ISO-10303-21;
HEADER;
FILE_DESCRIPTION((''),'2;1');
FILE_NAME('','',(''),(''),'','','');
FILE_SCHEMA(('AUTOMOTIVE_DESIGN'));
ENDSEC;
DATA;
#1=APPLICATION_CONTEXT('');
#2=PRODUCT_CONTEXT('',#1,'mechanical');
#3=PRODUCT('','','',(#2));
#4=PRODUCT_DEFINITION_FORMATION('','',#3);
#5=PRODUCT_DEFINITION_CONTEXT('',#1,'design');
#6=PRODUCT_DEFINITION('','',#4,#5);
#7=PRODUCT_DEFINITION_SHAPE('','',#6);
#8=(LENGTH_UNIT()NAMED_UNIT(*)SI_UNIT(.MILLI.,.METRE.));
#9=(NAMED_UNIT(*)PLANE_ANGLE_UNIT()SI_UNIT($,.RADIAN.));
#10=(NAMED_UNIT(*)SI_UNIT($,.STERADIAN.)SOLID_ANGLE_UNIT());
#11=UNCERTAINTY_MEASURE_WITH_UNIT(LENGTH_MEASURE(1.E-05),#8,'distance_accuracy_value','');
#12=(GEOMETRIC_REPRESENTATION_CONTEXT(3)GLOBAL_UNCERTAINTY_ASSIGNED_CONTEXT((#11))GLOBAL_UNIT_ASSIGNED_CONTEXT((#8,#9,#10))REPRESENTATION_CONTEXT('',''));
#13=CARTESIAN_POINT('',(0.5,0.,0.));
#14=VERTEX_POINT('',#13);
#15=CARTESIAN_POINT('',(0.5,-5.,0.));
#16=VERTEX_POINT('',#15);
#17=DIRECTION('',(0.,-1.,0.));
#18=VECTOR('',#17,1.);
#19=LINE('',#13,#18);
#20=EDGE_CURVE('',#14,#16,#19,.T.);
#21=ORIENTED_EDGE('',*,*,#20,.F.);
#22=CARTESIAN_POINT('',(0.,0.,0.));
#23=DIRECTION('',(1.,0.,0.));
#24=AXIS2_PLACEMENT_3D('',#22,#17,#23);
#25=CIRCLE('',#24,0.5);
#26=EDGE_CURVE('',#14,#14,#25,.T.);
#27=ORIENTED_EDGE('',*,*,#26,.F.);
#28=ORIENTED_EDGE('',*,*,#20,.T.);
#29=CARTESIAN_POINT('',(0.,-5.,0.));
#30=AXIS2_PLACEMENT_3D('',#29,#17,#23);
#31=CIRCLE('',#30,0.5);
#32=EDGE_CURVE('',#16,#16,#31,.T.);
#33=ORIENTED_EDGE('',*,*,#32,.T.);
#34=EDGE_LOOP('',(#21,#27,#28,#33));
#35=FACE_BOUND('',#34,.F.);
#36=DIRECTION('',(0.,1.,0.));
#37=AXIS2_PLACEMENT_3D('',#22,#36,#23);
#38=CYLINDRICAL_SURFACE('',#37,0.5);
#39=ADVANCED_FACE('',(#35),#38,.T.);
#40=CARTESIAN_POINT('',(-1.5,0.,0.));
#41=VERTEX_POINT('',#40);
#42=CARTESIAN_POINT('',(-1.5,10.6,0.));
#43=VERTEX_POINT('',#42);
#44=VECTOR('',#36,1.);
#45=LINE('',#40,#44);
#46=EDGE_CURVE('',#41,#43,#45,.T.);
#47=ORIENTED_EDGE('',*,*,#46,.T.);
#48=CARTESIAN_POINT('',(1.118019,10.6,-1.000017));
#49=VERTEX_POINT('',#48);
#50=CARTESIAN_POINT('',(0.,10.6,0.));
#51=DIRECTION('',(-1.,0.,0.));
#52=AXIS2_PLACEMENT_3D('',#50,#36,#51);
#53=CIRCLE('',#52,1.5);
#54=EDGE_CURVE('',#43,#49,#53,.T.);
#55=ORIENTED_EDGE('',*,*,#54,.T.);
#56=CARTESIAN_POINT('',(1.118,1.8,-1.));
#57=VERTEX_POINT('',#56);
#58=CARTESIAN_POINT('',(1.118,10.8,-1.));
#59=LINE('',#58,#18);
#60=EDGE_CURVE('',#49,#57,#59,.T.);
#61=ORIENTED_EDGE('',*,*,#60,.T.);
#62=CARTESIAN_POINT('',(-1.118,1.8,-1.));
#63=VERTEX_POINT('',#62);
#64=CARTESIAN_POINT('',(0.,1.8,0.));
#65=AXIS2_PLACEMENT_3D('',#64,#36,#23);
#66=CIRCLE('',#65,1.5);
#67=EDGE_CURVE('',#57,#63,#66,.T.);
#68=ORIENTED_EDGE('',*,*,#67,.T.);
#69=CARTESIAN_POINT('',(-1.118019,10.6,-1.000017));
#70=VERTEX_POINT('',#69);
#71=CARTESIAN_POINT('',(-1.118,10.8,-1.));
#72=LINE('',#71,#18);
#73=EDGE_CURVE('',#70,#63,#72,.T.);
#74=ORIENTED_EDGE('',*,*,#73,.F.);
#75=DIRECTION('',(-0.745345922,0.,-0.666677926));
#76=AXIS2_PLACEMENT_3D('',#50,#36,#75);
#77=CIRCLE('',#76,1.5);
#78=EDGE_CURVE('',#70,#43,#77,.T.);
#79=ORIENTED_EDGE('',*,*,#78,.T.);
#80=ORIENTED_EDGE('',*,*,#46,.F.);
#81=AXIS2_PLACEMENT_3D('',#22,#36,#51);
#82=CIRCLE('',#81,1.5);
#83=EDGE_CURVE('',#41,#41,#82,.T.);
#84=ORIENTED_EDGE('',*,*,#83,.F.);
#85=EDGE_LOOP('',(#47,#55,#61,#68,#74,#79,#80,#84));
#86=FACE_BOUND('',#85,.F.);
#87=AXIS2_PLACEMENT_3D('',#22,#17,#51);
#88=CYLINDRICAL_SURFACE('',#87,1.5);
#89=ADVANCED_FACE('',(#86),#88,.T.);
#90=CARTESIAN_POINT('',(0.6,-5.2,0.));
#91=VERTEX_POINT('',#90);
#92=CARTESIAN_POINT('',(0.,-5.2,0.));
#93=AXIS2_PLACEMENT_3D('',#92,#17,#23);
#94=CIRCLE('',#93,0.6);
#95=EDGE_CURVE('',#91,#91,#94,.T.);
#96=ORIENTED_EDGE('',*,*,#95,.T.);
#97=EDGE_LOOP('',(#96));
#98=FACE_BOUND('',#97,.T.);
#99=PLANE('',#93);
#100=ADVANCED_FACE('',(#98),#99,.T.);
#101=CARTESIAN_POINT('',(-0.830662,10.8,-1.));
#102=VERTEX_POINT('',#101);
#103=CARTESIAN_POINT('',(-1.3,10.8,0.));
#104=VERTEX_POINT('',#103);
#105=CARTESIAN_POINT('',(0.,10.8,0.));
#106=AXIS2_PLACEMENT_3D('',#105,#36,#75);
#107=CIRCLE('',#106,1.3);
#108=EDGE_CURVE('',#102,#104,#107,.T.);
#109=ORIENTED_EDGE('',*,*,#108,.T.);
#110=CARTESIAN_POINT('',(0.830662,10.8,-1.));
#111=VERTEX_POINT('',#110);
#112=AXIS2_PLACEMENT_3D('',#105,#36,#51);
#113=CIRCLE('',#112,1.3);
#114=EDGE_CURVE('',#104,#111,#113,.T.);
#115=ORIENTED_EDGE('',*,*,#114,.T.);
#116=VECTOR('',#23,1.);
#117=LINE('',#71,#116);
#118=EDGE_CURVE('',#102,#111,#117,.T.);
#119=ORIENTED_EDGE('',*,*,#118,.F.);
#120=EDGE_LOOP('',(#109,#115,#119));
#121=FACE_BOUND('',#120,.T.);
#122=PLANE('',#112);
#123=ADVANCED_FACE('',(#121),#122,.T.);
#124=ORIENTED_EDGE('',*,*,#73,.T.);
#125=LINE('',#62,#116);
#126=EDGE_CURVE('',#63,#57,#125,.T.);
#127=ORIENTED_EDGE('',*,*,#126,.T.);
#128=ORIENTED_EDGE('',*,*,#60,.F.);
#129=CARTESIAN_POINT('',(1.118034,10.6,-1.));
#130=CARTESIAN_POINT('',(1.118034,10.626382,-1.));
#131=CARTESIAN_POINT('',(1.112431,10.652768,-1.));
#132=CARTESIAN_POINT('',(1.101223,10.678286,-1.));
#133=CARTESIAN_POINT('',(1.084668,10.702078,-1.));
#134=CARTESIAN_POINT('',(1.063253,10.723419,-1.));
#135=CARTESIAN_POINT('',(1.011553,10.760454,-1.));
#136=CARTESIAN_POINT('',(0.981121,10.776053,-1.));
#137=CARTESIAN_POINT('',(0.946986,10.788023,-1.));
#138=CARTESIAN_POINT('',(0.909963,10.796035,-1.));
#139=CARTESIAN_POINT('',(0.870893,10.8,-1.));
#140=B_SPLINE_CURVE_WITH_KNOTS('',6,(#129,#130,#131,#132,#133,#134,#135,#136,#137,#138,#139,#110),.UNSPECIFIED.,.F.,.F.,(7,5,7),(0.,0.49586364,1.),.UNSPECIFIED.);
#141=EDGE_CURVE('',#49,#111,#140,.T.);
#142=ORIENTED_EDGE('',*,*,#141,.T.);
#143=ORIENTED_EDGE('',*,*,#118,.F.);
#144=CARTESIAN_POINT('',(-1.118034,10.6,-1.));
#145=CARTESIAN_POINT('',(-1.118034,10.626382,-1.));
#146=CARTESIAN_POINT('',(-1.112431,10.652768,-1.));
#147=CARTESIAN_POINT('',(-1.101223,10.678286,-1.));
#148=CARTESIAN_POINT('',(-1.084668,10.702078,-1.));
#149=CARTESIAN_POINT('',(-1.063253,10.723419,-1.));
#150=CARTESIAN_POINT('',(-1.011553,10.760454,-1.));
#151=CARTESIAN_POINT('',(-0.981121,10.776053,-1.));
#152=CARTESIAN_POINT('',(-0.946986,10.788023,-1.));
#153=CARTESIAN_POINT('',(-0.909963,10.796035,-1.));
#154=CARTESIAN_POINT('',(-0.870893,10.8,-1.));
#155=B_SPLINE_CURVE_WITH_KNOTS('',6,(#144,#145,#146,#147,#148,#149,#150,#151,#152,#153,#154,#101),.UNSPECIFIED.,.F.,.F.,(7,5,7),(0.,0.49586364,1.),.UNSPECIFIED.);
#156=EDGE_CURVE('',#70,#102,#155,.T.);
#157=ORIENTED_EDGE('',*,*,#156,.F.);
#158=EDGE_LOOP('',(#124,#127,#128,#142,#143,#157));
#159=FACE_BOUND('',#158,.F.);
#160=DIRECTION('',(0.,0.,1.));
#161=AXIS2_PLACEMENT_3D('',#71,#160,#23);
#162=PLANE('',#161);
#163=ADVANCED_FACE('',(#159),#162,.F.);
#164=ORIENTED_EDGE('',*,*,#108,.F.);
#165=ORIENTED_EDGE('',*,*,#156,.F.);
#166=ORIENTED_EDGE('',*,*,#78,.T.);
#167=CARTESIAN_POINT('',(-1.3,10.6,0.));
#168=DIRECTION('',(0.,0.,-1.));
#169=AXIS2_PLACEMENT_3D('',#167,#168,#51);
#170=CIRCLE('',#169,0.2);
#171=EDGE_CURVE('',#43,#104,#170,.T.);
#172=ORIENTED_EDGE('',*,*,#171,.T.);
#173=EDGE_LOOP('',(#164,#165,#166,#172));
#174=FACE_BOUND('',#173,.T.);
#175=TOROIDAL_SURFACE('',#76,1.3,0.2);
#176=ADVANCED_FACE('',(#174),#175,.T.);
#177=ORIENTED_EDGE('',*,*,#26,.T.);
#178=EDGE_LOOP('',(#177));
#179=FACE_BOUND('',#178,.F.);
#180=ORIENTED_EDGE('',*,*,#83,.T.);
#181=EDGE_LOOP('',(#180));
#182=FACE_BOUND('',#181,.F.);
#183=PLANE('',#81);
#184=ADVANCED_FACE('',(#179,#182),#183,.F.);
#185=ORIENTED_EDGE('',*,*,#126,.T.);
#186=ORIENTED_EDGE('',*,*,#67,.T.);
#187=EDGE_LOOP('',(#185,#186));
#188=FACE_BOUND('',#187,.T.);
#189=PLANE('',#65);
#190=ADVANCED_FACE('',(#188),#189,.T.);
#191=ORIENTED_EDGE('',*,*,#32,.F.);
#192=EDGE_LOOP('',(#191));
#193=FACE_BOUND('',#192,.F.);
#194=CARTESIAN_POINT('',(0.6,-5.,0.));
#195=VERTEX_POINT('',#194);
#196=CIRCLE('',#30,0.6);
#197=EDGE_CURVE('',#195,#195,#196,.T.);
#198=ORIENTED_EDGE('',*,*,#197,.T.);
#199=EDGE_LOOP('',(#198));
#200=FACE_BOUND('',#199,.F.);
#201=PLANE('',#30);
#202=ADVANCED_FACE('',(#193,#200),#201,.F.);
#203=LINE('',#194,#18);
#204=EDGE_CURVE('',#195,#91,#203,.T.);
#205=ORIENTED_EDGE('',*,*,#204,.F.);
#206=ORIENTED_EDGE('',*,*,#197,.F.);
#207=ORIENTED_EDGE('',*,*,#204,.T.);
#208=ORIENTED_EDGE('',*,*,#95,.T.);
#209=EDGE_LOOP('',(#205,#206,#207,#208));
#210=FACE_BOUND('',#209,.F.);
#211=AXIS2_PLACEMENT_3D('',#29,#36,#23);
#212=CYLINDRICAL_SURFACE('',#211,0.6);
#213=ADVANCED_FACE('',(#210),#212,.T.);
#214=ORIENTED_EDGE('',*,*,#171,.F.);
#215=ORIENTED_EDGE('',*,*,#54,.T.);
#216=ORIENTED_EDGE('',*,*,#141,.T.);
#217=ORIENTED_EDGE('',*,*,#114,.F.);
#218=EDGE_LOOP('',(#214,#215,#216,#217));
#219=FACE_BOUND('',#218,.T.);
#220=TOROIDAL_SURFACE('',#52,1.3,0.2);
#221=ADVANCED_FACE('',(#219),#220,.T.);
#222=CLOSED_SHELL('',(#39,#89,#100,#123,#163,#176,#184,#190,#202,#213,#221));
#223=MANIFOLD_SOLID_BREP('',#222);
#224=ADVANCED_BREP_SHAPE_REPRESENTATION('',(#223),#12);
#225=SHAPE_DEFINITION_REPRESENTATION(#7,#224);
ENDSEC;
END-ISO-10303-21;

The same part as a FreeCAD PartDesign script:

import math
import FreeCAD as App
import Part
import Sketcher
from FreeCAD import Vector


def edges_at(feature, points):
    """Names of the edges that pass closest to the given points."""
    edges = feature.Shape.Edges
    near = lambda p: min(range(len(edges)), key=lambda i: edges[i].distToShape(Part.Vertex(*p))[0])
    return sorted({f"Edge{near(p) + 1}" for p in points})

doc = App.newDocument("Part")
params = doc.addObject("Spreadsheet::Sheet", "Params")
for row, (alias, value) in enumerate([
    ("sketch1_diameter", "3 mm"),
    ("pad1_length", "10.8 mm"),
    ("sketch2_radius", "1.5 mm"),
    ("pocket1_length", "9 mm"),
    ("sketch3_diameter", "1 mm"),
    ("pad2_length", "5 mm"),
    ("sketch4_diameter", "1.2 mm"),
    ("pad3_length", "0.2 mm"),
    ("fillet_radius", "0.2 mm"),
], start=1):
    params.set(f"A{row}", alias)
    params.set(f"B{row}", "=" + value)
    params.setAlias(f"B{row}", alias)

body = doc.addObject("PartDesign::Body", "Body")

# Sketch on XZ plane
sketch1 = doc.addObject("Sketcher::SketchObject", "Sketch")
body.addObject(sketch1)
sketch1.AttachmentSupport = (doc.XZ_Plane, [""])
sketch1.MapMode = "FlatFace"
sketch1.addGeometry(Part.Circle(Vector(0, 0, 0), Vector(0, 0, 1), 1.5), False)
sketch1.addConstraint([
    Sketcher.Constraint("Coincident", 0, 3, -1, 1),
    Sketcher.Constraint("Diameter", 0, 3.0),
])
sketch1.setExpression("Constraints[1]", "Params.sketch1_diameter")
pad1 = doc.addObject("PartDesign::Pad", "Pad")
body.addObject(pad1)
pad1.Profile = sketch1
pad1.setExpression("Length", "Params.pad1_length")
pad1.Reversed = True

# Sketch on XZ plane
sketch2 = doc.addObject("Sketcher::SketchObject", "Sketch001")
body.addObject(sketch2)
sketch2.AttachmentSupport = (doc.XZ_Plane, [""])
sketch2.MapMode = "FlatFace"
sketch2.AttachmentOffset = App.Placement(Vector(0, 0, -10.8), App.Rotation())
sketch2.addGeometry([
    Part.LineSegment(Vector(-1.1, -1, 0), Vector(1.1, -1, 0)),
    Part.ArcOfCircle(Part.Circle(Vector(0, 0, 0), Vector(0, 0, 1), 1.5), math.radians(-138), math.radians(-42)),
], False)
sketch2.addConstraint([
    Sketcher.Constraint("Coincident", 0, 1, 1, 1),
    Sketcher.Constraint("Coincident", 1, 2, 0, 2),
    Sketcher.Constraint("Horizontal", 0),
    Sketcher.Constraint("Coincident", 1, 3, -1, 1),
    Sketcher.Constraint("Radius", 1, 1.5),
    Sketcher.Constraint("DistanceY", 0, 1, -1, 1, 1.0),
])
sketch2.setExpression("Constraints[4]", "Params.sketch2_radius")
pocket1 = doc.addObject("PartDesign::Pocket", "Pocket")
body.addObject(pocket1)
pocket1.Profile = sketch2
pocket1.setExpression("Length", "Params.pocket1_length")
pocket1.Reversed = True

# Sketch on XZ plane
sketch3 = doc.addObject("Sketcher::SketchObject", "Sketch002")
body.addObject(sketch3)
sketch3.AttachmentSupport = (doc.XZ_Plane, [""])
sketch3.MapMode = "FlatFace"
sketch3.addGeometry(Part.Circle(Vector(0, 0, 0), Vector(0, 0, 1), 0.5), False)
sketch3.addConstraint([
    Sketcher.Constraint("Coincident", 0, 3, -1, 1),
    Sketcher.Constraint("Diameter", 0, 1.0),
])
sketch3.setExpression("Constraints[1]", "Params.sketch3_diameter")
pad2 = doc.addObject("PartDesign::Pad", "Pad001")
body.addObject(pad2)
pad2.Profile = sketch3
pad2.setExpression("Length", "Params.pad2_length")

# Sketch on XZ plane
sketch4 = doc.addObject("Sketcher::SketchObject", "Sketch003")
body.addObject(sketch4)
sketch4.AttachmentSupport = (doc.XZ_Plane, [""])
sketch4.MapMode = "FlatFace"
sketch4.AttachmentOffset = App.Placement(Vector(0, 0, 5), App.Rotation())
sketch4.addGeometry(Part.Circle(Vector(0, 0, 0), Vector(0, 0, 1), 0.6), False)
sketch4.addConstraint([
    Sketcher.Constraint("Coincident", 0, 3, -1, 1),
    Sketcher.Constraint("Diameter", 0, 1.2),
])
sketch4.setExpression("Constraints[1]", "Params.sketch4_diameter")
pad3 = doc.addObject("PartDesign::Pad", "Pad002")
body.addObject(pad3)
pad3.Profile = sketch4
pad3.setExpression("Length", "Params.pad3_length")
doc.recompute()

fillet = doc.addObject("PartDesign::Fillet", "Fillet")
body.addObject(fillet)
fillet.Base = (pad3, edges_at(pad3, [(-1.401, 10.8, -0.535), (0.535, 10.8, 1.401)]))
fillet.setExpression("Radius", "Params.fillet_radius")

doc.recompute()
